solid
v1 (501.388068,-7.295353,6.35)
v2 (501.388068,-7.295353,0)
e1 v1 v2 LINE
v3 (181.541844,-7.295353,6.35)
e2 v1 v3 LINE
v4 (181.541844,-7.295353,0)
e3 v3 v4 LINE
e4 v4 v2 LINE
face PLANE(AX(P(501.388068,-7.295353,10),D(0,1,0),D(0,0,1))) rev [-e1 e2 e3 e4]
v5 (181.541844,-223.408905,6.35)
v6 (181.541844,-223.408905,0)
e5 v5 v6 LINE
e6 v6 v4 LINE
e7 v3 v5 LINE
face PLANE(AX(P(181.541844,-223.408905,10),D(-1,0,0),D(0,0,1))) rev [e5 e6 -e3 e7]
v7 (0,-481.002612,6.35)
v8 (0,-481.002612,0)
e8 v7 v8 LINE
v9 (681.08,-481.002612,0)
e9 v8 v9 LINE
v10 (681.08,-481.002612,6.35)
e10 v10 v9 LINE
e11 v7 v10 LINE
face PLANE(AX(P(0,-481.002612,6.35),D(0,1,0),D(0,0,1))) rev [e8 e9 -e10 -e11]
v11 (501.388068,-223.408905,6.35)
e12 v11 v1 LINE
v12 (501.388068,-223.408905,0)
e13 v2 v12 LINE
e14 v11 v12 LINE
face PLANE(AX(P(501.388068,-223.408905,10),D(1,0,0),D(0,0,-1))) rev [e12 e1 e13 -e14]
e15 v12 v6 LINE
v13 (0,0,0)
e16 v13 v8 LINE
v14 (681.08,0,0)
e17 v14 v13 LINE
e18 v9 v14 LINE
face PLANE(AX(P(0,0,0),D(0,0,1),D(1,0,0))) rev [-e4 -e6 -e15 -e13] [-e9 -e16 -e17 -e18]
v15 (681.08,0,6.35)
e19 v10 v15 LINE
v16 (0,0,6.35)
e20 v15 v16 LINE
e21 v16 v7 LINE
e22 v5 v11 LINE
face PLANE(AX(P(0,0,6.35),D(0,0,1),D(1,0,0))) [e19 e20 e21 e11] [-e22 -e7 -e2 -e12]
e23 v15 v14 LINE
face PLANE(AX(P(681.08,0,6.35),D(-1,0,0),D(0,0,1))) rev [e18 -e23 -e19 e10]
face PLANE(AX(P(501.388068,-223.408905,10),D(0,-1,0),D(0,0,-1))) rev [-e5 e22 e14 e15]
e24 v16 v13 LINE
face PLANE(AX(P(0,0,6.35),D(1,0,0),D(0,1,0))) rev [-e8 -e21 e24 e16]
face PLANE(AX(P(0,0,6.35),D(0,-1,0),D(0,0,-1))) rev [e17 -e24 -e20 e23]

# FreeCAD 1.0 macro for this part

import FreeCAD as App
import Part
import Sketcher

V = App.Vector


def add_polygon(sketch, points):
    """Adds a closed chain of lines whose ends are joined by coincident constraints."""
    first, n = sketch.GeometryCount, len(points)
    for a, b in zip(points, points[1:] + points[:1]):
        sketch.addGeometry(Part.LineSegment(App.Vector(*a, 0), App.Vector(*b, 0)), False)
    for i in range(n):
        sketch.addConstraint(Sketcher.Constraint("Coincident", first + i, 2, first + (i + 1) % n, 1))

doc = App.newDocument("Part")
params = doc.addObject("Spreadsheet::Sheet", "Params")
for row, (alias, value) in enumerate([
    ("sketch1_width", "681.08 mm"),
    ("pad1_length", "6.35 mm"),
    ("pocket1_length", "10 mm"),
], start=1):
    params.set(f"A{row}", alias)
    params.set(f"B{row}", "=" + value)
    params.setAlias(f"B{row}", alias)

body = doc.addObject("PartDesign::Body", "Body")

sketch1 = doc.addObject("Sketcher::SketchObject", "Sketch")
body.addObject(sketch1)
sketch1.AttachmentSupport = (doc.XY_Plane, [""])
sketch1.MapMode = "FlatFace"
add_polygon(sketch1, [(0, 0), (0, -481), (681, -481), (681, 0)])
sketch1.addConstraint(Sketcher.Constraint("Vertical", 0))
sketch1.addConstraint(Sketcher.Constraint("Horizontal", 1))
sketch1.addConstraint(Sketcher.Constraint("Vertical", 2))
sketch1.addConstraint(Sketcher.Constraint("Horizontal", 3))
sketch1.addConstraint(Sketcher.Constraint("Coincident", 3, 2, -1, 1))
sketch1.addConstraint(Sketcher.Constraint("DistanceX", 1, 1, 1, 2, 681.08))
sketch1.addConstraint(Sketcher.Constraint("DistanceY", 0, 2, 0, 1, 481.002612))
sketch1.setExpression("Constraints[9]", "Params.sketch1_width")
pad1 = doc.addObject("PartDesign::Pad", "Pad")
body.addObject(pad1)
pad1.Profile = sketch1
pad1.setExpression("Length", "Params.pad1_length")

sketch2 = doc.addObject("Sketcher::SketchObject", "Sketch001")
body.addObject(sketch2)
sketch2.AttachmentSupport = (doc.XY_Plane, [""])
sketch2.MapMode = "FlatFace"
add_polygon(sketch2, [(501, -7), (501, -223), (182, -223), (182, -7)])
sketch2.addConstraint(Sketcher.Constraint("Vertical", 0))
sketch2.addConstraint(Sketcher.Constraint("Horizontal", 1))
sketch2.addConstraint(Sketcher.Constraint("Vertical", 2))
sketch2.addConstraint(Sketcher.Constraint("Horizontal", 3))
sketch2.addConstraint(Sketcher.Constraint("DistanceY", 0, 2, 0, 1, 216.113552))
sketch2.addConstraint(Sketcher.Constraint("DistanceX", 1, 2, 1, 1, 319.846223))
sketch2.addConstraint(Sketcher.Constraint("DistanceX", -1, 1, 0, 2, 501.388068))
sketch2.addConstraint(Sketcher.Constraint("DistanceY", 0, 2, -1, 1, 223.408905))
pocket1 = doc.addObject("PartDesign::Pocket", "Pocket")
body.addObject(pocket1)
pocket1.Profile = sketch2
pocket1.setExpression("Length", "Params.pocket1_length")
pocket1.Reversed = True

doc.recompute()
